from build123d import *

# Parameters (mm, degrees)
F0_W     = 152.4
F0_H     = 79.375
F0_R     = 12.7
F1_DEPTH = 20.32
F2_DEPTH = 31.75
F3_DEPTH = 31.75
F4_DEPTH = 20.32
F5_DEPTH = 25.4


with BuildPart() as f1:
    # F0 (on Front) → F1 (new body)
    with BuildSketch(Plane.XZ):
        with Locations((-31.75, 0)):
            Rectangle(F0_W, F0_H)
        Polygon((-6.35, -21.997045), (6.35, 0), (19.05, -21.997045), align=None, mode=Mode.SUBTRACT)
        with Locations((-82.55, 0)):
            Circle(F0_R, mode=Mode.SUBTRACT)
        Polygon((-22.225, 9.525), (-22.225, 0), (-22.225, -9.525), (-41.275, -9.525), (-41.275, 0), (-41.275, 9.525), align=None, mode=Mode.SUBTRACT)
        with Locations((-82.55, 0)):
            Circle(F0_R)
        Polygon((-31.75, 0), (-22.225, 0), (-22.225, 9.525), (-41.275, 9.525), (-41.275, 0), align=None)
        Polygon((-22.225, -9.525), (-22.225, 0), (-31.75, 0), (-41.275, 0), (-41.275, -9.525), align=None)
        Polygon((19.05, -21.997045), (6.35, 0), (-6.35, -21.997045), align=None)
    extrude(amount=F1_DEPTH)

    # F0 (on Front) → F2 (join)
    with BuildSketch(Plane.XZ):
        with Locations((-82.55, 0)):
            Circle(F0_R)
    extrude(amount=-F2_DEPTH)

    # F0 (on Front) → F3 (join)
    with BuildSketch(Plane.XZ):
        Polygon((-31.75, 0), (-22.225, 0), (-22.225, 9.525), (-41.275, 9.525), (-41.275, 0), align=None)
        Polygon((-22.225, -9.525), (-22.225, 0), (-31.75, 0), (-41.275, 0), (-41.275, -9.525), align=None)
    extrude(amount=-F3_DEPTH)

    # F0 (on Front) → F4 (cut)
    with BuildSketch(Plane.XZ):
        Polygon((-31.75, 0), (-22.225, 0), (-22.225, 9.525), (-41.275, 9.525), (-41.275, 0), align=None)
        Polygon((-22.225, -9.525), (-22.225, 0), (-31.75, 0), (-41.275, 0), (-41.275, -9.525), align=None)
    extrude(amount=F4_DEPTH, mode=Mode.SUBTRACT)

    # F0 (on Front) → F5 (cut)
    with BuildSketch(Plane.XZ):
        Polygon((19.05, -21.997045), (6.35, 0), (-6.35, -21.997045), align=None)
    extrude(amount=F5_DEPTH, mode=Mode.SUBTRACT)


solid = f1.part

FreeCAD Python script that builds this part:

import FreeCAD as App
import Part
import Sketcher

V = App.Vector
Q = App.Units.Quantity


def add_polygon(sketch, points):
    """Adds a closed chain of lines whose ends are joined by coincident constraints."""
    first, n = sketch.GeometryCount, len(points)
    for a, b in zip(points, points[1:] + points[:1]):
        sketch.addGeometry(Part.LineSegment(App.Vector(*a, 0), App.Vector(*b, 0)), False)
    for i in range(n):
        sketch.addConstraint(Sketcher.Constraint("Coincident", first + i, 2, first + (i + 1) % n, 1))

doc = App.newDocument("Part")
body = doc.addObject("PartDesign::Body", "Body")
body.AllowCompound = True

sketch1 = doc.addObject("Sketcher::SketchObject", "Sketch")
body.addObject(sketch1)
sketch1.AttachmentSupport = (doc.XZ_Plane, [""])
sketch1.MapMode = "FlatFace"
add_polygon(sketch1, [(-108, 40), (-108, -40), (44, -40), (44, 40)])
sketch1.addConstraint(Sketcher.Constraint("Vertical", 0))
sketch1.addConstraint(Sketcher.Constraint("Horizontal", 1))
sketch1.addConstraint(Sketcher.Constraint("Vertical", 2))
sketch1.addConstraint(Sketcher.Constraint("Horizontal", 3))
sketch1.addConstraint(Sketcher.Constraint("DistanceX", 1, 1, 1, 2, Q("6 in")))
sketch1.addConstraint(Sketcher.Constraint("DistanceY", 0, 2, 0, 1, Q("3.125 in")))
sketch1.addConstraint(Sketcher.Constraint("DistanceX", 0, 2, -1, 1, Q("4.25 in")))
sketch1.addConstraint(Sketcher.Constraint("DistanceY", 0, 2, -1, 1, Q("1.5625 in")))
pad1 = doc.addObject("PartDesign::Pad", "Pad")
body.addObject(pad1)
pad1.Profile = sketch1
pad1.Length = Q("0.8 in")

sketch2 = doc.addObject("Sketcher::SketchObject", "Sketch001")
body.addObject(sketch2)
sketch2.AttachmentSupport = (doc.XZ_Plane, [""])
sketch2.MapMode = "FlatFace"
sketch2.addGeometry(Part.Circle(V(-83, 0, 0), V(0, 0, 1), 13), False)
sketch2.addConstraint(Sketcher.Constraint("PointOnObject", 0, 3, -1))
sketch2.addConstraint(Sketcher.Constraint("Diameter", 0, Q("1 in")))
sketch2.addConstraint(Sketcher.Constraint("DistanceX", 0, 3, -1, 1, Q("3.25 in")))
pad2 = doc.addObject("PartDesign::Pad", "Pad001")
body.addObject(pad2)
pad2.Profile = sketch2
pad2.Length = Q("1.25 in")
pad2.Reversed = True

sketch3 = doc.addObject("Sketcher::SketchObject", "Sketch002")
body.addObject(sketch3)
sketch3.AttachmentSupport = (doc.XZ_Plane, [""])
sketch3.MapMode = "FlatFace"
add_polygon(sketch3, [(-22, 10), (-41, 10), (-41, -10), (-22, -10)])
sketch3.addConstraint(Sketcher.Constraint("Horizontal", 0))
sketch3.addConstraint(Sketcher.Constraint("Vertical", 1))
sketch3.addConstraint(Sketcher.Constraint("Horizontal", 2))
sketch3.addConstraint(Sketcher.Constraint("Vertical", 3))
sketch3.addConstraint(Sketcher.Constraint("Equal", 2, 1))
sketch3.addConstraint(Sketcher.Constraint("DistanceX", 0, 2, 0, 1, Q("0.75 in")))
sketch3.addConstraint(Sketcher.Constraint("DistanceX", 0, 2, -1, 1, Q("1.625 in")))
sketch3.addConstraint(Sketcher.Constraint("DistanceY", -1, 1, 0, 2, Q("0.375 in")))
pad3 = doc.addObject("PartDesign::Pad", "Pad002")
body.addObject(pad3)
pad3.Profile = sketch3
pad3.Length = Q("1.25 in")
pad3.Reversed = True

sketch4 = doc.addObject("Sketcher::SketchObject", "Sketch003")
body.addObject(sketch4)
sketch4.AttachmentSupport = (doc.XZ_Plane, [""])
sketch4.MapMode = "FlatFace"
add_polygon(sketch4, [(-22, 10), (-41, 10), (-41, -10), (-22, -10)])
sketch4.addConstraint(Sketcher.Constraint("Horizontal", 0))
sketch4.addConstraint(Sketcher.Constraint("Vertical", 1))
sketch4.addConstraint(Sketcher.Constraint("Horizontal", 2))
sketch4.addConstraint(Sketcher.Constraint("Vertical", 3))
sketch4.addConstraint(Sketcher.Constraint("Equal", 2, 1))
sketch4.addConstraint(Sketcher.Constraint("DistanceX", 0, 2, 0, 1, Q("0.75 in")))
sketch4.addConstraint(Sketcher.Constraint("DistanceX", 0, 2, -1, 1, Q("1.625 in")))
sketch4.addConstraint(Sketcher.Constraint("DistanceY", -1, 1, 0, 2, Q("0.375 in")))
pocket1 = doc.addObject("PartDesign::Pocket", "Pocket")
body.addObject(pocket1)
pocket1.Profile = sketch4
pocket1.Length = Q("0.8 in")
pocket1.Reversed = True

sketch5 = doc.addObject("Sketcher::SketchObject", "Sketch004")
body.addObject(sketch5)
sketch5.AttachmentSupport = (doc.XZ_Plane, [""])
sketch5.MapMode = "FlatFace"
add_polygon(sketch5, [(19, -22), (6, 0), (-6, -22)])
sketch5.addConstraint(Sketcher.Constraint("Horizontal", 2))
sketch5.addConstraint(Sketcher.Constraint("PointOnObject", 0, 2, -1))
sketch5.addConstraint(Sketcher.Constraint("Equal", 0, 1))
sketch5.addConstraint(Sketcher.Constraint("DistanceX", 2, 1, 2, 2, Q("1 in")))
sketch5.addConstraint(Sketcher.Constraint("Distance", 0, Q("1 in")))
sketch5.addConstraint(Sketcher.Constraint("DistanceX", -1, 1, 0, 2, Q("0.25 in")))
pocket2 = doc.addObject("PartDesign::Pocket", "Pocket001")
body.addObject(pocket2)
pocket2.Profile = sketch5
pocket2.Length = Q("1 in")
pocket2.Reversed = True

doc.recompute()
